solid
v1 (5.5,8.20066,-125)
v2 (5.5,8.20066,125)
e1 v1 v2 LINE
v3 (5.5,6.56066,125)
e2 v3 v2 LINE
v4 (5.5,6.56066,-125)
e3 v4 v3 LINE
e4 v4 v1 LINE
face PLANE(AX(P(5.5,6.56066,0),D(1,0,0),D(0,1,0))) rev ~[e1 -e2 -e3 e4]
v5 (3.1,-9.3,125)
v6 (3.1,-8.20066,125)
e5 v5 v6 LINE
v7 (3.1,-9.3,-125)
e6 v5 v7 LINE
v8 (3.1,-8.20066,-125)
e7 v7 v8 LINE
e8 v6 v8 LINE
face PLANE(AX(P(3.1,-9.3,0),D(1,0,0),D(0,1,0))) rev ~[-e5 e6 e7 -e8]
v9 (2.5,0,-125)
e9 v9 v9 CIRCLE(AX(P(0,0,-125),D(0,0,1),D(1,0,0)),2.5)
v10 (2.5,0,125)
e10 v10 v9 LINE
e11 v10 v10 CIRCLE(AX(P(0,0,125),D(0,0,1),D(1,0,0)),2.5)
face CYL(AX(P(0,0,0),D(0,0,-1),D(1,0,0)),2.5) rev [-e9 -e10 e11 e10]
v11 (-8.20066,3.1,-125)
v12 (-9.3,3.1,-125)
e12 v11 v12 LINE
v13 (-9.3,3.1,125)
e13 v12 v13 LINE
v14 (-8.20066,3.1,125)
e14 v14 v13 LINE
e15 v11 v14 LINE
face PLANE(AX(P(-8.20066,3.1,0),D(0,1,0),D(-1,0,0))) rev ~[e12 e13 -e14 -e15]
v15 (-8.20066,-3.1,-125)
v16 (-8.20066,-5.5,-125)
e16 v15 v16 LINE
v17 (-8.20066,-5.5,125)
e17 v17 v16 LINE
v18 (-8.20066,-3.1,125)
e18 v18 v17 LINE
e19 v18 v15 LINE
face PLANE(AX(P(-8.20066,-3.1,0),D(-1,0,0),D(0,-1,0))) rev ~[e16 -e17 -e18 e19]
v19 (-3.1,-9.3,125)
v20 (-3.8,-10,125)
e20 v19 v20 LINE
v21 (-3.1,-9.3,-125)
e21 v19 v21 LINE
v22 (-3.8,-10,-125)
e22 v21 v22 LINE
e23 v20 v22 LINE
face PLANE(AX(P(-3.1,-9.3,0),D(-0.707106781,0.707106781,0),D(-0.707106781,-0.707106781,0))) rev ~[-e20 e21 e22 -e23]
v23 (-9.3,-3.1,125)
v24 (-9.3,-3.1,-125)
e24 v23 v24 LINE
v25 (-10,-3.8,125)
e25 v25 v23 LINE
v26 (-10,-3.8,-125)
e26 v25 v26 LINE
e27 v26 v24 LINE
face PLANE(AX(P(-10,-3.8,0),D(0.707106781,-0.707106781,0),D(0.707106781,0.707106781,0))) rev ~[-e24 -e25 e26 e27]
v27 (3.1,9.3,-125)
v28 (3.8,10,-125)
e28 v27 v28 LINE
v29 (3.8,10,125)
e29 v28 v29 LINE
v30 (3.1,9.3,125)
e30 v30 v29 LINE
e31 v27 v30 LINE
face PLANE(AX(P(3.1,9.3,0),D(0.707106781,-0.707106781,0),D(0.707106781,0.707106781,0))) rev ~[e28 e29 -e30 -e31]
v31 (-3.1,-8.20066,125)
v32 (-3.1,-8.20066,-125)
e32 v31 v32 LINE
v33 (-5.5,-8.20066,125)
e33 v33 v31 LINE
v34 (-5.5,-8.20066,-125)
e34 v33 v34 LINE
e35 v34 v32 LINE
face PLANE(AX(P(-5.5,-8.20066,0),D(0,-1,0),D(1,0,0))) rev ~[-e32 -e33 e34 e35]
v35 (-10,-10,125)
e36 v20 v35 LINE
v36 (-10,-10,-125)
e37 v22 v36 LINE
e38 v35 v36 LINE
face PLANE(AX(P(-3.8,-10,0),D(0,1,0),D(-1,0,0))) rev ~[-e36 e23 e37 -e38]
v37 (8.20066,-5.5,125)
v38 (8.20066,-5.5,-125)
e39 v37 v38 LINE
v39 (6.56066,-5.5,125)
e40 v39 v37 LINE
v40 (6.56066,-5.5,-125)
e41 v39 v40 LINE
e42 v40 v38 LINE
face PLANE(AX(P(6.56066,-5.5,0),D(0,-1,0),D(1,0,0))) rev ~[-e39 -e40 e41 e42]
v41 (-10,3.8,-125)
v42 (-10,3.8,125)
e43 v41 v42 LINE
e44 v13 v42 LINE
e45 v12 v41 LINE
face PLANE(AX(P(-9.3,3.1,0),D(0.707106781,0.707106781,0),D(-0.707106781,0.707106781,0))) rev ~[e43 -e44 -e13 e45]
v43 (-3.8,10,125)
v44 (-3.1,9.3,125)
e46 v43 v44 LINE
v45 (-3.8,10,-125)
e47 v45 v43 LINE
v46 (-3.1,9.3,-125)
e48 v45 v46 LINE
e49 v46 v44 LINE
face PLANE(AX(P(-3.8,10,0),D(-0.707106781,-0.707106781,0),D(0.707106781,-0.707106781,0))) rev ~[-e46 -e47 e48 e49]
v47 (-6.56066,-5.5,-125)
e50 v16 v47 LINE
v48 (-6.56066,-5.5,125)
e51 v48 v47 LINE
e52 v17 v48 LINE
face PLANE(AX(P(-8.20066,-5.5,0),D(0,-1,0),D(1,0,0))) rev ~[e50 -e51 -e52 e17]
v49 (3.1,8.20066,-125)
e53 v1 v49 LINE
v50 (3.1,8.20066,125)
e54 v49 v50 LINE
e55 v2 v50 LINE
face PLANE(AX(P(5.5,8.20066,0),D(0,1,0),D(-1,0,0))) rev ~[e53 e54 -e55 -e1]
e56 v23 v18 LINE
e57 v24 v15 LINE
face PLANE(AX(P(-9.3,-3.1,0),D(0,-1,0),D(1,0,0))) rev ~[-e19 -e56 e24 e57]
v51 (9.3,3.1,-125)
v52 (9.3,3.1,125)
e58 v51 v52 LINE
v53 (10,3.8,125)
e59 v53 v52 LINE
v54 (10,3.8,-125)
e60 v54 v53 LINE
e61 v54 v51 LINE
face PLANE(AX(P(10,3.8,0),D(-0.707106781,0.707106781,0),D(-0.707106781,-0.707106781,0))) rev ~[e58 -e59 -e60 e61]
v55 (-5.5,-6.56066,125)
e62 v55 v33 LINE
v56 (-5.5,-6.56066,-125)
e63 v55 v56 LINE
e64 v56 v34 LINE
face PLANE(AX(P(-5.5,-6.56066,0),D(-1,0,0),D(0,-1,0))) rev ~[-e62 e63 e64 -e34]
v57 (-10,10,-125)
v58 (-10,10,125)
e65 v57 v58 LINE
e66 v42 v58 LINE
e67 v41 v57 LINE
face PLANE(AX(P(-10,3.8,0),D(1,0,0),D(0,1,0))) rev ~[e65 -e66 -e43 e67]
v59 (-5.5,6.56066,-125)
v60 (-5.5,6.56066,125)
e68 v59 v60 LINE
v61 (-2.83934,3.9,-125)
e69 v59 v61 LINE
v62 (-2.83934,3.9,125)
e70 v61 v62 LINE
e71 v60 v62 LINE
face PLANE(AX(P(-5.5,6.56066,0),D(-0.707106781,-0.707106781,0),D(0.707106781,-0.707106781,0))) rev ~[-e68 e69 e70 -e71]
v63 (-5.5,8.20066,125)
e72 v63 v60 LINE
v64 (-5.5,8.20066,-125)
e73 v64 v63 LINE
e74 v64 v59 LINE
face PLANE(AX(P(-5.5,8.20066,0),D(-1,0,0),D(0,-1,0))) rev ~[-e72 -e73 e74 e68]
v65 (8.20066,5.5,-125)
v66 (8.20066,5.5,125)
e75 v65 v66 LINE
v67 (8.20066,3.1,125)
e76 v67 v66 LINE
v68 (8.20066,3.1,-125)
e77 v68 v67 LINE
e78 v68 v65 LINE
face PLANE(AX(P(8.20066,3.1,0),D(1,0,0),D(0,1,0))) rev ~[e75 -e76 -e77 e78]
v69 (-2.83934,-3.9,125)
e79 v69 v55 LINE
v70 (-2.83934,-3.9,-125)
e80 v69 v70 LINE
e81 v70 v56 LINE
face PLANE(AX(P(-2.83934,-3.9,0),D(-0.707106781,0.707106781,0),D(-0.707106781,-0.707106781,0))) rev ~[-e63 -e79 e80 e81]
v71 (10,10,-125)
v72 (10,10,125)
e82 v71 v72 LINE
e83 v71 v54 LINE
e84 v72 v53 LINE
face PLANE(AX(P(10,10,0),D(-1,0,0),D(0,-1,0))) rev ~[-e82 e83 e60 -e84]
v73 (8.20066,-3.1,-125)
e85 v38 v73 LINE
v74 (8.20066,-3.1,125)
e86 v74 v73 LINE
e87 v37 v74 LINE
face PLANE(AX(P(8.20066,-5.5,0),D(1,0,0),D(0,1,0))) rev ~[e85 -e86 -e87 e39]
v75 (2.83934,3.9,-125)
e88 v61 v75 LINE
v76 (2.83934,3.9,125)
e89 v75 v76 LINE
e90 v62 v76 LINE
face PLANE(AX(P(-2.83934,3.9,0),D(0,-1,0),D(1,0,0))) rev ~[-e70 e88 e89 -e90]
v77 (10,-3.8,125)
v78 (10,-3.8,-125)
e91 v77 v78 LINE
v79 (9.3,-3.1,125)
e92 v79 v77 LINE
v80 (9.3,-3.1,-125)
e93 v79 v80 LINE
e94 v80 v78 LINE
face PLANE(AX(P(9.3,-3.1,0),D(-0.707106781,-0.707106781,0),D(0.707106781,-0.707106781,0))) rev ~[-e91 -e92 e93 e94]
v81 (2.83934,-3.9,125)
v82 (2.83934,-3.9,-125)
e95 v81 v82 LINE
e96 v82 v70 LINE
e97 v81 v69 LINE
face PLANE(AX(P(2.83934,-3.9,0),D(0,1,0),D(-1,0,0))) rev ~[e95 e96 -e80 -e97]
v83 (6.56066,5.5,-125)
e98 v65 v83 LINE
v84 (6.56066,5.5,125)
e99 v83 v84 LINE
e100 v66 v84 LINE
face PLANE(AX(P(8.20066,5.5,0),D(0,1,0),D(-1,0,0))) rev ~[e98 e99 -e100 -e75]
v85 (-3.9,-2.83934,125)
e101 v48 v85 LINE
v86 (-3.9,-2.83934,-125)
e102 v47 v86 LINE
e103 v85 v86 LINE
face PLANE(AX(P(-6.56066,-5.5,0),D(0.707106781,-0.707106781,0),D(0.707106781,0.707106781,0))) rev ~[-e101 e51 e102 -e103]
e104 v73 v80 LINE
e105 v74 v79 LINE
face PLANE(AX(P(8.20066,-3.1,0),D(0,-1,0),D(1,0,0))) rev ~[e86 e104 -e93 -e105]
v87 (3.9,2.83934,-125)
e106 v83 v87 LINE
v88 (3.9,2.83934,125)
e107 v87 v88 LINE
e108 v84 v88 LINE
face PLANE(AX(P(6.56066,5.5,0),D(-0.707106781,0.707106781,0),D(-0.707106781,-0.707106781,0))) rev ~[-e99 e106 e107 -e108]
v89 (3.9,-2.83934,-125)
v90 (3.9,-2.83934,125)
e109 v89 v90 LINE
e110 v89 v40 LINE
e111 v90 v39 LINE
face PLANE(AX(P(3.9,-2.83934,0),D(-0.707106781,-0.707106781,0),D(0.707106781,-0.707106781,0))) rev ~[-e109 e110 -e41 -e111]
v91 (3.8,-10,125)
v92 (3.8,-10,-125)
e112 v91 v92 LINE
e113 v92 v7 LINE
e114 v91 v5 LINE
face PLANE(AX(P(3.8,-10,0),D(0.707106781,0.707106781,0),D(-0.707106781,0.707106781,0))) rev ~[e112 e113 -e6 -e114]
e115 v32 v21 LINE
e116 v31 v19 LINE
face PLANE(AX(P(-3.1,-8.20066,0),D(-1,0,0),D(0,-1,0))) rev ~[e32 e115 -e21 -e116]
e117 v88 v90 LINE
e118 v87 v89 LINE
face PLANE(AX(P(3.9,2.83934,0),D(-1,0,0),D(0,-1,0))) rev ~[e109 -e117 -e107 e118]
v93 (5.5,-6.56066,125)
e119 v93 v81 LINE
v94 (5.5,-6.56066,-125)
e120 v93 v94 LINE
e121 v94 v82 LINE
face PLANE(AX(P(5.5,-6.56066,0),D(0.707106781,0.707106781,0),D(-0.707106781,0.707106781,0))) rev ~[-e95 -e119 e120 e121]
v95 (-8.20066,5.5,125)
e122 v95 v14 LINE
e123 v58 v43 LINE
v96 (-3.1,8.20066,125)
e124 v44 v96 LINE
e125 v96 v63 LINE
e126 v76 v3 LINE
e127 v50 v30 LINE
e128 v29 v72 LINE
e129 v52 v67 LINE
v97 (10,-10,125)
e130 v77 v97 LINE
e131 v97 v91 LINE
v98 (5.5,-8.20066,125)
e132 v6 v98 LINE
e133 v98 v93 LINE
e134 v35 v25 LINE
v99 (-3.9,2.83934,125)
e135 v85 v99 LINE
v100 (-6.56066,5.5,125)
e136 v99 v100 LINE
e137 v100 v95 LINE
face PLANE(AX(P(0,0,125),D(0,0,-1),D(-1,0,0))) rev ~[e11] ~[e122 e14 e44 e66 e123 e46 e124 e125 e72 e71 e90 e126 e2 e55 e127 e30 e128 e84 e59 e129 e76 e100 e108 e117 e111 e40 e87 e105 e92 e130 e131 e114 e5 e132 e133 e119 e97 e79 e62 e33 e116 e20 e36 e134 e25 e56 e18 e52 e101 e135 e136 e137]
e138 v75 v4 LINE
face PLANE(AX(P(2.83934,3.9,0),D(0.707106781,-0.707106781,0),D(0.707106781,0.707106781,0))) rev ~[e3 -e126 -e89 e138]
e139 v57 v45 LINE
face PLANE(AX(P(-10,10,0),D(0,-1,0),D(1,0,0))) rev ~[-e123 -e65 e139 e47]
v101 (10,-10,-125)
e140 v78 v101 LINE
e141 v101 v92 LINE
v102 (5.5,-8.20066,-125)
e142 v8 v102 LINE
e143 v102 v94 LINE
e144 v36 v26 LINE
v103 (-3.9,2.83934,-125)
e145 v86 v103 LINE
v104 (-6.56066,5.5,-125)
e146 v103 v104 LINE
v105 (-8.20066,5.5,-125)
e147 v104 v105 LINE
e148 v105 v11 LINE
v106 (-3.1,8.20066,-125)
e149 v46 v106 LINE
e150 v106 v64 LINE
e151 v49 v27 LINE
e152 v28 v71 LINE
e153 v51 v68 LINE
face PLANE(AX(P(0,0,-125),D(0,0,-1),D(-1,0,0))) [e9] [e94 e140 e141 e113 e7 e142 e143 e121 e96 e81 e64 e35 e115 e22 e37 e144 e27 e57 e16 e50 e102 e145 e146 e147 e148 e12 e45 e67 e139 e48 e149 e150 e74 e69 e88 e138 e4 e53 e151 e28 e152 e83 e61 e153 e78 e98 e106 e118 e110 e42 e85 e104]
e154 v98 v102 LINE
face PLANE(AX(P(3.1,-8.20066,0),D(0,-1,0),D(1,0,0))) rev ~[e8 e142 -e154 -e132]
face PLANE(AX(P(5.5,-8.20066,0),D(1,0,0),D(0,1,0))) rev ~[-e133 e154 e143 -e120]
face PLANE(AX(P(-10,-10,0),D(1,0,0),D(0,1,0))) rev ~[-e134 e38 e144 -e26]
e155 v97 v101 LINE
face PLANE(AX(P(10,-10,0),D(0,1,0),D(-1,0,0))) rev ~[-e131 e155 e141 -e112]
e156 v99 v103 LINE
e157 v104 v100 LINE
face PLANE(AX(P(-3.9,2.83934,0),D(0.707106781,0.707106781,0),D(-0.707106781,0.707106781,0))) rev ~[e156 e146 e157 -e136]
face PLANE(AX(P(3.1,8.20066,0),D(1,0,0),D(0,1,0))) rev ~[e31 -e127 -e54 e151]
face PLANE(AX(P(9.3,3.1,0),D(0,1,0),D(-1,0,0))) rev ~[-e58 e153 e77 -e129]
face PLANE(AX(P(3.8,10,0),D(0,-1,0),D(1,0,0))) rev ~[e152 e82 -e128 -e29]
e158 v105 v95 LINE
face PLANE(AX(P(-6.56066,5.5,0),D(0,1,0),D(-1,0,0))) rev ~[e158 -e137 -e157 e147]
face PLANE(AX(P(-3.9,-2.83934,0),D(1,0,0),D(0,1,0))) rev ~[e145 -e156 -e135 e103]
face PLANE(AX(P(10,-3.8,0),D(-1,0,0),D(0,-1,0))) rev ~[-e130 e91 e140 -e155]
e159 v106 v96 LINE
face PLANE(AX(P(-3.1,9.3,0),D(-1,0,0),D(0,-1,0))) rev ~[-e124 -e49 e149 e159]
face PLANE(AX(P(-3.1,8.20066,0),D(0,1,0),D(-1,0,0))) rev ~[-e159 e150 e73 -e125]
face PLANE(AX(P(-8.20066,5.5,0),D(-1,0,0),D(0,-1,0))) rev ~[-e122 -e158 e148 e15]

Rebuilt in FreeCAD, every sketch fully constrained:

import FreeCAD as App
import Part
import Sketcher

doc = App.newDocument("Part")
body = doc.addObject("PartDesign::Body", "Body")

sketch1 = body.newObject("Sketcher::SketchObject", "Sketch")
sketch1.AttachmentSupport = (doc.getObject("XY_Plane"), [""])
sketch1.MapMode = "FlatFace"
sketch1.addGeometry([
    Part.LineSegment(App.Vector(6.6, -5.5, 0), App.Vector(3.9, -2.8, 0)),
    Part.LineSegment(App.Vector(3.9, -2.8, 0), App.Vector(3.9, 2.8, 0)),
    Part.LineSegment(App.Vector(3.9, 2.8, 0), App.Vector(6.6, 5.5, 0)),
    Part.LineSegment(App.Vector(6.6, 5.5, 0), App.Vector(8.2, 5.5, 0)),
    Part.LineSegment(App.Vector(8.2, 5.5, 0), App.Vector(8.2, 3.1, 0)),
    Part.LineSegment(App.Vector(8.2, 3.1, 0), App.Vector(9.3, 3.1, 0)),
    Part.LineSegment(App.Vector(9.3, 3.1, 0), App.Vector(10, 3.8, 0)),
    Part.LineSegment(App.Vector(10, 3.8, 0), App.Vector(10, 10, 0)),
    Part.LineSegment(App.Vector(10, 10, 0), App.Vector(3.8, 10, 0)),
    Part.LineSegment(App.Vector(3.8, 10, 0), App.Vector(3.1, 9.3, 0)),
    Part.LineSegment(App.Vector(3.1, 9.3, 0), App.Vector(3.1, 8.2, 0)),
    Part.LineSegment(App.Vector(3.1, 8.2, 0), App.Vector(5.5, 8.2, 0)),
    Part.LineSegment(App.Vector(5.5, 8.2, 0), App.Vector(5.5, 6.6, 0)),
    Part.LineSegment(App.Vector(5.5, 6.6, 0), App.Vector(2.8, 3.9, 0)),
    Part.LineSegment(App.Vector(2.8, 3.9, 0), App.Vector(-2.8, 3.9, 0)),
    Part.LineSegment(App.Vector(-2.8, 3.9, 0), App.Vector(-5.5, 6.6, 0)),
    Part.LineSegment(App.Vector(-5.5, 6.6, 0), App.Vector(-5.5, 8.2, 0)),
    Part.LineSegment(App.Vector(-5.5, 8.2, 0), App.Vector(-3.1, 8.2, 0)),
    Part.LineSegment(App.Vector(-3.1, 8.2, 0), App.Vector(-3.1, 9.3, 0)),
    Part.LineSegment(App.Vector(-3.1, 9.3, 0), App.Vector(-3.8, 10, 0)),
    Part.LineSegment(App.Vector(-3.8, 10, 0), App.Vector(-10, 10, 0)),
    Part.LineSegment(App.Vector(-10, 10, 0), App.Vector(-10, 3.8, 0)),
    Part.LineSegment(App.Vector(-10, 3.8, 0), App.Vector(-9.3, 3.1, 0)),
    Part.LineSegment(App.Vector(-9.3, 3.1, 0), App.Vector(-8.2, 3.1, 0)),
    Part.LineSegment(App.Vector(-8.2, 3.1, 0), App.Vector(-8.2, 5.5, 0)),
    Part.LineSegment(App.Vector(-8.2, 5.5, 0), App.Vector(-6.6, 5.5, 0)),
    Part.LineSegment(App.Vector(-6.6, 5.5, 0), App.Vector(-3.9, 2.8, 0)),
    Part.LineSegment(App.Vector(-3.9, 2.8, 0), App.Vector(-3.9, -2.8, 0)),
    Part.LineSegment(App.Vector(-3.9, -2.8, 0), App.Vector(-6.6, -5.5, 0)),
    Part.LineSegment(App.Vector(-6.6, -5.5, 0), App.Vector(-8.2, -5.5, 0)),
    Part.LineSegment(App.Vector(-8.2, -5.5, 0), App.Vector(-8.2, -3.1, 0)),
    Part.LineSegment(App.Vector(-8.2, -3.1, 0), App.Vector(-9.3, -3.1, 0)),
    Part.LineSegment(App.Vector(-9.3, -3.1, 0), App.Vector(-10, -3.8, 0)),
    Part.LineSegment(App.Vector(-10, -3.8, 0), App.Vector(-10, -10, 0)),
    Part.LineSegment(App.Vector(-10, -10, 0), App.Vector(-3.8, -10, 0)),
    Part.LineSegment(App.Vector(-3.8, -10, 0), App.Vector(-3.1, -9.3, 0)),
    Part.LineSegment(App.Vector(-3.1, -9.3, 0), App.Vector(-3.1, -8.2, 0)),
    Part.LineSegment(App.Vector(-3.1, -8.2, 0), App.Vector(-5.5, -8.2, 0)),
    Part.LineSegment(App.Vector(-5.5, -8.2, 0), App.Vector(-5.5, -6.6, 0)),
    Part.LineSegment(App.Vector(-5.5, -6.6, 0), App.Vector(-2.8, -3.9, 0)),
    Part.LineSegment(App.Vector(-2.8, -3.9, 0), App.Vector(2.8, -3.9, 0)),
    Part.LineSegment(App.Vector(2.8, -3.9, 0), App.Vector(5.5, -6.6, 0)),
    Part.LineSegment(App.Vector(5.5, -6.6, 0), App.Vector(5.5, -8.2, 0)),
    Part.LineSegment(App.Vector(5.5, -8.2, 0), App.Vector(3.1, -8.2, 0)),
    Part.LineSegment(App.Vector(3.1, -8.2, 0), App.Vector(3.1, -9.3, 0)),
    Part.LineSegment(App.Vector(3.1, -9.3, 0), App.Vector(3.8, -10, 0)),
    Part.LineSegment(App.Vector(3.8, -10, 0), App.Vector(10, -10, 0)),
    Part.LineSegment(App.Vector(10, -10, 0), App.Vector(10, -3.8, 0)),
    Part.LineSegment(App.Vector(10, -3.8, 0), App.Vector(9.3, -3.1, 0)),
    Part.LineSegment(App.Vector(9.3, -3.1, 0), App.Vector(8.2, -3.1, 0)),
    Part.LineSegment(App.Vector(8.2, -3.1, 0), App.Vector(8.2, -5.5, 0)),
    Part.LineSegment(App.Vector(8.2, -5.5, 0), App.Vector(6.6, -5.5, 0)),
    Part.Circle(App.Vector(0, 0, 0), App.Vector(0, 0, 1), 2.5),
], False)
sketch1.addConstraint([
    Sketcher.Constraint("Coincident", 0, 2, 1, 1),
    Sketcher.Constraint("Coincident", 1, 2, 2, 1),
    Sketcher.Constraint("Coincident", 2, 2, 3, 1),
    Sketcher.Constraint("Coincident", 3, 2, 4, 1),
    Sketcher.Constraint("Coincident", 4, 2, 5, 1),
    Sketcher.Constraint("Coincident", 5, 2, 6, 1),
    Sketcher.Constraint("Coincident", 6, 2, 7, 1),
    Sketcher.Constraint("Coincident", 7, 2, 8, 1),
    Sketcher.Constraint("Coincident", 8, 2, 9, 1),
    Sketcher.Constraint("Coincident", 9, 2, 10, 1),
    Sketcher.Constraint("Coincident", 10, 2, 11, 1),
    Sketcher.Constraint("Coincident", 11, 2, 12, 1),
    Sketcher.Constraint("Coincident", 12, 2, 13, 1),
    Sketcher.Constraint("Coincident", 13, 2, 14, 1),
    Sketcher.Constraint("Coincident", 14, 2, 15, 1),
    Sketcher.Constraint("Coincident", 15, 2, 16, 1),
    Sketcher.Constraint("Coincident", 16, 2, 17, 1),
    Sketcher.Constraint("Coincident", 17, 2, 18, 1),
    Sketcher.Constraint("Coincident", 18, 2, 19, 1),
    Sketcher.Constraint("Coincident", 19, 2, 20, 1),
    Sketcher.Constraint("Coincident", 20, 2, 21, 1),
    Sketcher.Constraint("Coincident", 21, 2, 22, 1),
    Sketcher.Constraint("Coincident", 22, 2, 23, 1),
    Sketcher.Constraint("Coincident", 23, 2, 24, 1),
    Sketcher.Constraint("Coincident", 24, 2, 25, 1),
    Sketcher.Constraint("Coincident", 25, 2, 26, 1),
    Sketcher.Constraint("Coincident", 26, 2, 27, 1),
    Sketcher.Constraint("Coincident", 27, 2, 28, 1),
    Sketcher.Constraint("Coincident", 28, 2, 29, 1),
    Sketcher.Constraint("Coincident", 29, 2, 30, 1),
    Sketcher.Constraint("Coincident", 30, 2, 31, 1),
    Sketcher.Constraint("Coincident", 31, 2, 32, 1),
    Sketcher.Constraint("Coincident", 32, 2, 33, 1),
    Sketcher.Constraint("Coincident", 33, 2, 34, 1),
    Sketcher.Constraint("Coincident", 34, 2, 35, 1),
    Sketcher.Constraint("Coincident", 35, 2, 36, 1),
    Sketcher.Constraint("Coincident", 36, 2, 37, 1),
    Sketcher.Constraint("Coincident", 37, 2, 38, 1),
    Sketcher.Constraint("Coincident", 38, 2, 39, 1),
    Sketcher.Constraint("Coincident", 39, 2, 40, 1),
    Sketcher.Constraint("Coincident", 40, 2, 41, 1),
    Sketcher.Constraint("Coincident", 41, 2, 42, 1),
    Sketcher.Constraint("Coincident", 42, 2, 43, 1),
    Sketcher.Constraint("Coincident", 43, 2, 44, 1),
    Sketcher.Constraint("Coincident", 44, 2, 45, 1),
    Sketcher.Constraint("Coincident", 45, 2, 46, 1),
    Sketcher.Constraint("Coincident", 46, 2, 47, 1),
    Sketcher.Constraint("Coincident", 47, 2, 48, 1),
    Sketcher.Constraint("Coincident", 48, 2, 49, 1),
    Sketcher.Constraint("Coincident", 49, 2, 50, 1),
    Sketcher.Constraint("Coincident", 50, 2, 51, 1),
    Sketcher.Constraint("Coincident", 51, 2, 0, 1),
    Sketcher.Constraint("Vertical", 1),
    Sketcher.Constraint("Horizontal", 3),
    Sketcher.Constraint("Vertical", 4),
    Sketcher.Constraint("Horizontal", 5),
    Sketcher.Constraint("Vertical", 7),
    Sketcher.Constraint("Horizontal", 8),
    Sketcher.Constraint("Vertical", 10),
    Sketcher.Constraint("Horizontal", 11),
    Sketcher.Constraint("Vertical", 12),
    Sketcher.Constraint("Horizontal", 14),
    Sketcher.Constraint("Vertical", 16),
    Sketcher.Constraint("Horizontal", 17),
    Sketcher.Constraint("Vertical", 18),
    Sketcher.Constraint("Horizontal", 20),
    Sketcher.Constraint("Vertical", 21),
    Sketcher.Constraint("Horizontal", 23),
    Sketcher.Constraint("Vertical", 24),
    Sketcher.Constraint("Horizontal", 25),
    Sketcher.Constraint("Vertical", 27),
    Sketcher.Constraint("Horizontal", 29),
    Sketcher.Constraint("Vertical", 30),
    Sketcher.Constraint("Horizontal", 31),
    Sketcher.Constraint("Vertical", 33),
    Sketcher.Constraint("Horizontal", 34),
    Sketcher.Constraint("Vertical", 36),
    Sketcher.Constraint("Horizontal", 37),
    Sketcher.Constraint("Vertical", 38),
    Sketcher.Constraint("Horizontal", 40),
    Sketcher.Constraint("Vertical", 42),
    Sketcher.Constraint("Horizontal", 43),
    Sketcher.Constraint("Vertical", 44),
    Sketcher.Constraint("Horizontal", 46),
    Sketcher.Constraint("Vertical", 47),
    Sketcher.Constraint("Horizontal", 49),
    Sketcher.Constraint("Vertical", 50),
    Sketcher.Constraint("Horizontal", 51),
    Sketcher.Constraint("Coincident", 52, 3, -1, 1),
    Sketcher.Constraint("Symmetric", 0, 2, 26, 2, -1, 1),
    Sketcher.Constraint("Symmetric", 2, 2, 28, 2, -1, 1),
    Sketcher.Constraint("Symmetric", 4, 2, 30, 2, -1, 1),
    Sketcher.Constraint("Symmetric", 6, 2, 32, 2, -1, 1),
    Sketcher.Constraint("Symmetric", 8, 2, 34, 2, -1, 1),
    Sketcher.Constraint("Symmetric", 9, 2, 35, 2, -1, 1),
    Sketcher.Constraint("Symmetric", 11, 2, 37, 2, -1, 1),
    Sketcher.Constraint("Symmetric", 13, 2, 39, 2, -1, 1),
    Sketcher.Constraint("Symmetric", 15, 2, 41, 2, -1, 1),
    Sketcher.Constraint("Symmetric", 17, 2, 43, 2, -1, 1),
    Sketcher.Constraint("Symmetric", 19, 2, 45, 2, -1, 1),
    Sketcher.Constraint("Symmetric", 21, 2, 47, 2, -1, 1),
    Sketcher.Constraint("Symmetric", 22, 2, 48, 2, -1, 1),
    Sketcher.Constraint("Symmetric", 24, 2, 50, 2, -1, 1),
    Sketcher.Constraint("Symmetric", 12, 2, 15, 2, -2),
    Sketcher.Constraint("Symmetric", 10, 2, 17, 2, -2),
    Sketcher.Constraint("Symmetric", 8, 2, 19, 2, -2),
    Sketcher.Constraint("Symmetric", 6, 2, 21, 2, -2),
    Sketcher.Constraint("Symmetric", 5, 2, 22, 2, -2),
    Sketcher.Constraint("Symmetric", 3, 2, 24, 2, -2),
    Sketcher.Constraint("Perpendicular", 0, 2),
    Sketcher.Constraint("Parallel", 2, 6),
    Sketcher.Constraint("Parallel", 6, 9),
    Sketcher.Constraint("Parallel", 9, 13),
    Sketcher.Constraint("Perpendicular", 13, 15),
    Sketcher.Constraint("Parallel", 15, 19),
    Sketcher.Constraint("Parallel", 19, 22),
    Sketcher.Constraint("Parallel", 22, 26),
    Sketcher.Constraint("Perpendicular", 26, 28),
    Sketcher.Constraint("Parallel", 28, 32),
    Sketcher.Constraint("Parallel", 35, 39),
    Sketcher.Constraint("Perpendicular", 39, 41),
    Sketcher.Constraint("Parallel", 41, 45),
    Sketcher.Constraint("Horizontal", 1, 2, 26, 2),
    Sketcher.Constraint("Equal", 40, 1),
    Sketcher.Constraint("Equal", 43, 4),
    Sketcher.Constraint("Equal", 46, 7),
    Sketcher.Constraint("Equal", 49, 10),
    Sketcher.Constraint("Equal", 51, 12),
    Sketcher.Constraint("Equal", 6, 9),
    Sketcher.Constraint("Equal", 2, 13),
    Sketcher.Constraint("Diameter", 52, 5.0),
    Sketcher.Constraint("DistanceX", 8, 2, 8, 1, 6.2),
    Sketcher.Constraint("DistanceX", 11, 1, 11, 2, 2.4),
    Sketcher.Constraint("DistanceX", -1, 1, 6, 2, 10.0),
    Sketcher.Constraint("DistanceX", 3, 1, 3, 2, 1.64),
    Sketcher.Constraint("DistanceX", -1, 1, 0, 2, 3.9),
    Sketcher.Constraint("DistanceY", -1, 1, 2, 2, 5.5),
    Sketcher.Constraint("DistanceX", 5, 1, 5, 2, 1.09934),
])
pad1 = body.newObject("PartDesign::Pad", "Pad")
pad1.Profile = sketch1
pad1.Length = 250
pad1.Midplane = True

doc.recompute()
